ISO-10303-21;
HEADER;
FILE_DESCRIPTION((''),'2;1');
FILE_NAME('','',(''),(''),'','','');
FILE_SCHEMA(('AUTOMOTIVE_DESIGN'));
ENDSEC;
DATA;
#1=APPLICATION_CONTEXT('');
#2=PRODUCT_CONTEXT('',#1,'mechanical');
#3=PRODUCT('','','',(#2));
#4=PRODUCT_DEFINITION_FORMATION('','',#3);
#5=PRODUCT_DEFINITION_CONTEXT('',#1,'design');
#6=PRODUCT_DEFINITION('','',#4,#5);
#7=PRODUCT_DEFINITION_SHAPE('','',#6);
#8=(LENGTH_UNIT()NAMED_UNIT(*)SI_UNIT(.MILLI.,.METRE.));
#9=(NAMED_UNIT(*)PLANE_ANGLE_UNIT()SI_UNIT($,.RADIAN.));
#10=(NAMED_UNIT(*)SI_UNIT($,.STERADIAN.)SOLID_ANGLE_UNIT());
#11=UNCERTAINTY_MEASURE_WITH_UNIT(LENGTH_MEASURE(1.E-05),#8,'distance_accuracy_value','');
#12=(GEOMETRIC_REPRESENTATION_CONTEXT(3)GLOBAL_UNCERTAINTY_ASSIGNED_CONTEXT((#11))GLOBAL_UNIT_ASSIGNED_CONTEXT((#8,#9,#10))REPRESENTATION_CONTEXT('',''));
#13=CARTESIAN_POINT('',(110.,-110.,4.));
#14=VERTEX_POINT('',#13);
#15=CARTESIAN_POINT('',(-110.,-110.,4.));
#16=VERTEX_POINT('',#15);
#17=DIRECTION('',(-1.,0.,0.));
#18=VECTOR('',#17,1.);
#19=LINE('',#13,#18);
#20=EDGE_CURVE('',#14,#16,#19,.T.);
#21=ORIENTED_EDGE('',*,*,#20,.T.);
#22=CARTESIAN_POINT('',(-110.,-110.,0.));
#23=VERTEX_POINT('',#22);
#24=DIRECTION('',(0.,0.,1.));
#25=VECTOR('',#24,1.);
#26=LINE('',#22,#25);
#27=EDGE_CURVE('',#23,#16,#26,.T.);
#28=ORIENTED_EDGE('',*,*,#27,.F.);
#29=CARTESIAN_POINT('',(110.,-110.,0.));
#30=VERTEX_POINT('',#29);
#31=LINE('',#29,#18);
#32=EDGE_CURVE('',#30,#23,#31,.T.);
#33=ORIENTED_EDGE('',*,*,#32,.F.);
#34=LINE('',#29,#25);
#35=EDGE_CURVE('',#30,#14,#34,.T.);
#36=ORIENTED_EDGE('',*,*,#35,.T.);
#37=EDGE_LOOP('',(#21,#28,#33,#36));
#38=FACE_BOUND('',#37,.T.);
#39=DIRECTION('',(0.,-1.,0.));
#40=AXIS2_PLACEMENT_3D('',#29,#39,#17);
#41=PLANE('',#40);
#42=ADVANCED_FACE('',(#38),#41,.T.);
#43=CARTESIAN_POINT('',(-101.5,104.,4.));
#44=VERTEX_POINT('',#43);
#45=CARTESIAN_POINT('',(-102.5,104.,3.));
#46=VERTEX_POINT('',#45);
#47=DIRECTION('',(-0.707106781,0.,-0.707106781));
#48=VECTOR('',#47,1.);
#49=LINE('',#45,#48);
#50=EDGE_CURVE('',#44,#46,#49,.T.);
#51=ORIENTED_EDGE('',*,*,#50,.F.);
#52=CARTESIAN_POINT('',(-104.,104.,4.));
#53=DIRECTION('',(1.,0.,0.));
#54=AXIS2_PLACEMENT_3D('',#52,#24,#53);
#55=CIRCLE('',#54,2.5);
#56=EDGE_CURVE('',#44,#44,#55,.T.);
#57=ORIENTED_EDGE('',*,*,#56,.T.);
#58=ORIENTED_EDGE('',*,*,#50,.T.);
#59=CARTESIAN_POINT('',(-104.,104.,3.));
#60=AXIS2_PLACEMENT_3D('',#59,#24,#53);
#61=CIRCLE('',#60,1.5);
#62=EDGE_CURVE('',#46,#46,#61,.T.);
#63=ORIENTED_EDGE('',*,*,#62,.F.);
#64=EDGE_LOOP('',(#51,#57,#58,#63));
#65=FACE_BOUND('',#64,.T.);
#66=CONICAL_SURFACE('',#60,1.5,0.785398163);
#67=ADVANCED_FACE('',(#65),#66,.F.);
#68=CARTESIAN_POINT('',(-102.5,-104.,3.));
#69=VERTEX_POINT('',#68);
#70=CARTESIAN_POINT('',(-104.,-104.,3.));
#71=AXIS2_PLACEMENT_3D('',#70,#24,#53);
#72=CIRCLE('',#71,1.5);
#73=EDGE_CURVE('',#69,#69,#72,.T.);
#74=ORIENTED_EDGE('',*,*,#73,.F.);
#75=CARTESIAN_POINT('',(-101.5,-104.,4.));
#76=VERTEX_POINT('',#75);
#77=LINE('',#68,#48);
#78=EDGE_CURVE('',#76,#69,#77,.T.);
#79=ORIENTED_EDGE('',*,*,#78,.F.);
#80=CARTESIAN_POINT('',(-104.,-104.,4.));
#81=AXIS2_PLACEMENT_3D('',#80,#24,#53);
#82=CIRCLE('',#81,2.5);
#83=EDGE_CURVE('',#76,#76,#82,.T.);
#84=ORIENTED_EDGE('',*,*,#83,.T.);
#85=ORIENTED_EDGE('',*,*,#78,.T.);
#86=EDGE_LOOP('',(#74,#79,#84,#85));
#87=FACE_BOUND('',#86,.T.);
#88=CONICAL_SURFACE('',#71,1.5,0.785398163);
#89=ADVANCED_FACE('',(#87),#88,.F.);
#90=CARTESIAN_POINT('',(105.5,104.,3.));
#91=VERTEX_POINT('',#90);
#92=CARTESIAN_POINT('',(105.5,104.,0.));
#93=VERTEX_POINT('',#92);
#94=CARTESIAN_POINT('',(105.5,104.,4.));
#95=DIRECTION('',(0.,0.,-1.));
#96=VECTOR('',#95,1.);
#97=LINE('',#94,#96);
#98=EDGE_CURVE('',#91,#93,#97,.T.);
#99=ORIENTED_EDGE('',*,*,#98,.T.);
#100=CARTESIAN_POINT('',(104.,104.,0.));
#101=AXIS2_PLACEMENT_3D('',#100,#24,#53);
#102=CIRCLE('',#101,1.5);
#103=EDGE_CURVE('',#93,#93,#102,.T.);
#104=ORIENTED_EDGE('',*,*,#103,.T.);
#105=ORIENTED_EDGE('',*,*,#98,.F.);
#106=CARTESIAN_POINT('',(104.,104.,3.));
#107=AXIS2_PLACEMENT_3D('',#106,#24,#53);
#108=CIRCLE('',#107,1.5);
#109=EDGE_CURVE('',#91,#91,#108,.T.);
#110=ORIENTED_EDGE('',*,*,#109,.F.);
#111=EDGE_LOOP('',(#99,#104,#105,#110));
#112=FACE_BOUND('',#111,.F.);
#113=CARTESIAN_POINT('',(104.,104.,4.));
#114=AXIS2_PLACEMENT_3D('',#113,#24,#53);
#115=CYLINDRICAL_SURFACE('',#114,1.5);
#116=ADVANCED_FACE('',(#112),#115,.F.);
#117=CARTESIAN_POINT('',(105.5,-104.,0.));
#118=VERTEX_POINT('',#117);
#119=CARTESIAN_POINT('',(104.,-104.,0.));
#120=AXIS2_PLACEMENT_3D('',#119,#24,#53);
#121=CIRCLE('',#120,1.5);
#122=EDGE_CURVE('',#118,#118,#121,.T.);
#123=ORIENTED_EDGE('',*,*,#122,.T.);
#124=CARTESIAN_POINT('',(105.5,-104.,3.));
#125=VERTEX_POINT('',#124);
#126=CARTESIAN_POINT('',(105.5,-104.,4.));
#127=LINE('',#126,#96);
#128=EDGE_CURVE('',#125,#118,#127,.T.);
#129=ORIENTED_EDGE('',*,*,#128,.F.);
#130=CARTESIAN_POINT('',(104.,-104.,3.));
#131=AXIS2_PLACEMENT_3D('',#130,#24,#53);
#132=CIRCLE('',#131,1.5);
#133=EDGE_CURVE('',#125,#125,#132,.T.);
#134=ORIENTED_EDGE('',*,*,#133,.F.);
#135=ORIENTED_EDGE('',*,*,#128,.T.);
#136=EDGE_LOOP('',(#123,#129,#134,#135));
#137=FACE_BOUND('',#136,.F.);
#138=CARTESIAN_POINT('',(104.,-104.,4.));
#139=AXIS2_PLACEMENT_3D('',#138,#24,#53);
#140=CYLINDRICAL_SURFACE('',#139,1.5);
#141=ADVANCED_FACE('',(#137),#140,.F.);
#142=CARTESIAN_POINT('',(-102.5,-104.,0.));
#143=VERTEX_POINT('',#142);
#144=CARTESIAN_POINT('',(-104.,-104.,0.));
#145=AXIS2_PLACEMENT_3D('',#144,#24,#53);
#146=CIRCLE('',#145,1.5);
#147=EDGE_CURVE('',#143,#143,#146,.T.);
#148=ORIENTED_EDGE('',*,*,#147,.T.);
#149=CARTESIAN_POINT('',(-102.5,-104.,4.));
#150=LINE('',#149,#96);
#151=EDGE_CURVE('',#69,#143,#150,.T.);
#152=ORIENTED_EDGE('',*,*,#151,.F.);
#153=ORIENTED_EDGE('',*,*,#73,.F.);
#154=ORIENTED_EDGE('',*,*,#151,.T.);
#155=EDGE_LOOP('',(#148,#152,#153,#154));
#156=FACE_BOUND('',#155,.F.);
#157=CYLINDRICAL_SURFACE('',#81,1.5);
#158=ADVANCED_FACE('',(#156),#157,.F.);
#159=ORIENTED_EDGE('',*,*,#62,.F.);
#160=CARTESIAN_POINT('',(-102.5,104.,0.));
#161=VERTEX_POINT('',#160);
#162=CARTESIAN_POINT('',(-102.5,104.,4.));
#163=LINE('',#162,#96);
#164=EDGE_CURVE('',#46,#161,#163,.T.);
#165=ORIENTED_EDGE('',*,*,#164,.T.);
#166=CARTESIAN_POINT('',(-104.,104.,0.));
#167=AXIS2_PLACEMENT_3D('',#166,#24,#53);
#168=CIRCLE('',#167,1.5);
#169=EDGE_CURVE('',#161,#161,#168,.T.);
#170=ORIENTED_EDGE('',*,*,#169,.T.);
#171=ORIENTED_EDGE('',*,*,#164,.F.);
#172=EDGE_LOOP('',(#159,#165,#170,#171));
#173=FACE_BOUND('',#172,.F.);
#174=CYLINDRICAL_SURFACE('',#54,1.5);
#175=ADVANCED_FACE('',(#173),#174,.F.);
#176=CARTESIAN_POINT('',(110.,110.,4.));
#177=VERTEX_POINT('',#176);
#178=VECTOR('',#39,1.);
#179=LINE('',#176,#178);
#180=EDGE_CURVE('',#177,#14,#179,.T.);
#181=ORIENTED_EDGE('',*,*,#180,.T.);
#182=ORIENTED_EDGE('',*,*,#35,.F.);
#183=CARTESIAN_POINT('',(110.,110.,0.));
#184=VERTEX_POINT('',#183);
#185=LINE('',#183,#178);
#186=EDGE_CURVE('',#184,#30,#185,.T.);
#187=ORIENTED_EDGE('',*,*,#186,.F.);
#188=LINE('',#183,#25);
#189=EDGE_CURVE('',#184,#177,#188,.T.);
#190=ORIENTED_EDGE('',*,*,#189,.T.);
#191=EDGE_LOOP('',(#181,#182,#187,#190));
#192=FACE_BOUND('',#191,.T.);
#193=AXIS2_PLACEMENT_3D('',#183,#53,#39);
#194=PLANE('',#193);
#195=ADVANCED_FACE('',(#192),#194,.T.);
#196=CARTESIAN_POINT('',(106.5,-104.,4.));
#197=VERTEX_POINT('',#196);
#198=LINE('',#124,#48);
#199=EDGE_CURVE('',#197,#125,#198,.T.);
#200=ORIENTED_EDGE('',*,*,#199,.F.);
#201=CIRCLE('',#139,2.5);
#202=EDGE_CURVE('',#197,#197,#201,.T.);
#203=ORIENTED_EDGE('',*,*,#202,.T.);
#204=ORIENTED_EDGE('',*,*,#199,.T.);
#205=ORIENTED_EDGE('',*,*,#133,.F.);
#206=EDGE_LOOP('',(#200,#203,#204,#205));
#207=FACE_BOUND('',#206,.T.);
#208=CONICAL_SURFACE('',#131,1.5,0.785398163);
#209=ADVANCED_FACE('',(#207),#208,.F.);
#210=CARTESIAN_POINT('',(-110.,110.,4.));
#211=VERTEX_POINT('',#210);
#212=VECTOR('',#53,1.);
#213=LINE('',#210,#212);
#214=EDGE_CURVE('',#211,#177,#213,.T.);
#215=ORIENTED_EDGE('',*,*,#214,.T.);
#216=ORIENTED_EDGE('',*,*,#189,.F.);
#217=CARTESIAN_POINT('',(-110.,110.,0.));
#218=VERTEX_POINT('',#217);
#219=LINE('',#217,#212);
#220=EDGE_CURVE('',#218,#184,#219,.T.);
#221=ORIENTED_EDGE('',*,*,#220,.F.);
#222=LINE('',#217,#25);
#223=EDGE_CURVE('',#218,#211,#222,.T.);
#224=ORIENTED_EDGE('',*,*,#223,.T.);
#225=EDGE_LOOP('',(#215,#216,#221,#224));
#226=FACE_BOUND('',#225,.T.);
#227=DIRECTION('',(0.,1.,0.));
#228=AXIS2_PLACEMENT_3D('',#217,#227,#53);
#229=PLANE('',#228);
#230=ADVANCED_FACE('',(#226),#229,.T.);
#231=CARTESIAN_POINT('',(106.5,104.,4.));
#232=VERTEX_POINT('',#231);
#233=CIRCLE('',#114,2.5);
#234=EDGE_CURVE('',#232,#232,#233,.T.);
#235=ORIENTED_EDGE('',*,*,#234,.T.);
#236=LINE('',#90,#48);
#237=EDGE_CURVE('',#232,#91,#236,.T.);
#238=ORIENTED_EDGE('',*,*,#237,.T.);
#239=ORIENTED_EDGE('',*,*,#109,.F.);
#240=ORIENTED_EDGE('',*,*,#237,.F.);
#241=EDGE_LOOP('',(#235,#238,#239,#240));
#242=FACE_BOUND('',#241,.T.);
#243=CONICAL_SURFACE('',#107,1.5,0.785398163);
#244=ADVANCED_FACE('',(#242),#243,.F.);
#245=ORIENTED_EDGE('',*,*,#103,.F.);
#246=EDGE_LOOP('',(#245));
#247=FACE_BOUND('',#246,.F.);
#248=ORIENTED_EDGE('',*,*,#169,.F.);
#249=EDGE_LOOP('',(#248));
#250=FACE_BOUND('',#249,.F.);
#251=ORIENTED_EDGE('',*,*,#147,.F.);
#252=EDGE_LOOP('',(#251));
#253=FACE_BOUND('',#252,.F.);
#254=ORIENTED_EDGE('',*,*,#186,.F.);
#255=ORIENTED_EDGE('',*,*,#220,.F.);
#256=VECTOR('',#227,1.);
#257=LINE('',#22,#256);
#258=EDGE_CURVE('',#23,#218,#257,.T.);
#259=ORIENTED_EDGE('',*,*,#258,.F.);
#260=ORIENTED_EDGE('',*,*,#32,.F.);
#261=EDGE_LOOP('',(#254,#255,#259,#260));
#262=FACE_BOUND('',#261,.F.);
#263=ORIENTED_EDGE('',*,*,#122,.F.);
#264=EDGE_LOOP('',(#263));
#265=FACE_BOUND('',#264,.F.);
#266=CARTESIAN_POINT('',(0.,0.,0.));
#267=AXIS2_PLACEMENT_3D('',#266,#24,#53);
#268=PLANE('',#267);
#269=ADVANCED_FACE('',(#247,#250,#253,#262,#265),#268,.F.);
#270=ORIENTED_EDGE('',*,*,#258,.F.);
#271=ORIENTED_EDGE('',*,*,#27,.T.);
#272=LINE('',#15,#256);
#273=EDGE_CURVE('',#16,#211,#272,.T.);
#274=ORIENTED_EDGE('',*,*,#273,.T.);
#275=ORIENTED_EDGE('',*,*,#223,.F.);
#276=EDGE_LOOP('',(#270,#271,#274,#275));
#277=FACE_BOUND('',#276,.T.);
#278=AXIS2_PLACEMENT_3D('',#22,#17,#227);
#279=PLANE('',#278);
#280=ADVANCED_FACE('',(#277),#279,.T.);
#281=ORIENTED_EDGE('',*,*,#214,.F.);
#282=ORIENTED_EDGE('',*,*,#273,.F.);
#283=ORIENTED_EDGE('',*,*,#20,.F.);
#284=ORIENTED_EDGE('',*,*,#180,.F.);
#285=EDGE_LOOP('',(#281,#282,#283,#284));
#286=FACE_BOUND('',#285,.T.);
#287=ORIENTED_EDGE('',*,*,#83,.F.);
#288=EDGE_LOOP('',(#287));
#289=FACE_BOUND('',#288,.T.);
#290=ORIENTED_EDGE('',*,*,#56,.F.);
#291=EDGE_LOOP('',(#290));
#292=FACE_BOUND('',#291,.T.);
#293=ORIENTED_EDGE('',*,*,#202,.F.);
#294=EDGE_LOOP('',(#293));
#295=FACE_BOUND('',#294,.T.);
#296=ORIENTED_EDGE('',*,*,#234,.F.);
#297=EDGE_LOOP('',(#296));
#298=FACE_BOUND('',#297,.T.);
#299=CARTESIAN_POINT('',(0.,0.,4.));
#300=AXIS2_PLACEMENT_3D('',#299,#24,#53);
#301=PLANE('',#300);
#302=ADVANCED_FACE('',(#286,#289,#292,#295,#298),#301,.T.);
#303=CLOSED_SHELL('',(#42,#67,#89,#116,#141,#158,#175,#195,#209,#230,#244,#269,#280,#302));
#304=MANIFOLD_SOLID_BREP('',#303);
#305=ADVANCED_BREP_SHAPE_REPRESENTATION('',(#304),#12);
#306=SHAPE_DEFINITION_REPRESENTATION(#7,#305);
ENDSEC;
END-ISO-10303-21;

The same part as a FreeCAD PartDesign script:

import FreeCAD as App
import Part
import Sketcher


def edges_at(feature, points):
    """Names of the edges that pass closest to the given points."""
    edges = feature.Shape.Edges
    near = lambda p: min(range(len(edges)), key=lambda i: edges[i].distToShape(Part.Vertex(*p))[0])
    return sorted({f"Edge{near(p) + 1}" for p in points})

doc = App.newDocument("Part")
body = doc.addObject("PartDesign::Body", "Body")

# Sketch on XY plane
sketch1 = body.newObject("Sketcher::SketchObject", "Sketch")
sketch1.AttachmentSupport = (doc.getObject("XY_Plane"), [""])
sketch1.MapMode = "FlatFace"
sketch1.addGeometry([
    Part.LineSegment(App.Vector(110, 110, 0), App.Vector(-110, 110, 0)),
    Part.LineSegment(App.Vector(-110, 110, 0), App.Vector(-110, -110, 0)),
    Part.LineSegment(App.Vector(-110, -110, 0), App.Vector(110, -110, 0)),
    Part.LineSegment(App.Vector(110, -110, 0), App.Vector(110, 110, 0)),
], False)
sketch1.addConstraint([
    Sketcher.Constraint("Coincident", 0, 2, 1, 1),
    Sketcher.Constraint("Coincident", 1, 2, 2, 1),
    Sketcher.Constraint("Coincident", 2, 2, 3, 1),
    Sketcher.Constraint("Coincident", 3, 2, 0, 1),
    Sketcher.Constraint("Horizontal", 0),
    Sketcher.Constraint("Vertical", 1),
    Sketcher.Constraint("Horizontal", 2),
    Sketcher.Constraint("Vertical", 3),
    Sketcher.Constraint("Symmetric", 0, 2, 2, 2, -1, 1),
    Sketcher.Constraint("Equal", 2, 1),
    Sketcher.Constraint("DistanceX", 0, 2, 0, 1, 220.0),
])
pad1 = body.newObject("PartDesign::Pad", "Pad")
pad1.Profile = sketch1
pad1.Length = 4

# Sketch on XY plane
sketch2 = body.newObject("Sketcher::SketchObject", "Sketch001")
sketch2.AttachmentSupport = (doc.getObject("XY_Plane"), [""])
sketch2.MapMode = "FlatFace"
sketch2.AttachmentOffset = App.Placement(App.Vector(0, 0, 4), App.Rotation())
sketch2.addGeometry([
    Part.Circle(App.Vector(-104, 104, 0), App.Vector(0, 0, 1), 1.5),
    Part.Circle(App.Vector(-104, -104, 0), App.Vector(0, 0, 1), 1.5),
    Part.Circle(App.Vector(104, -104, 0), App.Vector(0, 0, 1), 1.5),
    Part.Circle(App.Vector(104, 104, 0), App.Vector(0, 0, 1), 1.5),
], False)
sketch2.addConstraint([
    Sketcher.Constraint("Equal", 0, 1),
    Sketcher.Constraint("Equal", 1, 2),
    Sketcher.Constraint("Equal", 2, 3),
    Sketcher.Constraint("Symmetric", 0, 3, 2, 3, -1, 1),
    Sketcher.Constraint("Symmetric", 1, 3, 3, 3, -1, 1),
    Sketcher.Constraint("Symmetric", 1, 3, 2, 3, -2),
    Sketcher.Constraint("Diameter", 0, 3.0),
    Sketcher.Constraint("DistanceX", 0, 3, -1, 1, 104.0),
    Sketcher.Constraint("DistanceY", -1, 1, 0, 3, 104.0),
])
pocket1 = body.newObject("PartDesign::Pocket", "Pocket")
pocket1.Profile = sketch2
pocket1.Length = 4
doc.recompute()

chamfer = body.newObject("PartDesign::Chamfer", "Chamfer")
chamfer.Base = (pocket1, edges_at(pocket1, [
    (102.5, 104, 4),
    (102.5, -104, 4),
    (-105.5, -104, 4),
    (-105.5, 104, 4),
]))
chamfer.Size = 1

doc.recompute()
